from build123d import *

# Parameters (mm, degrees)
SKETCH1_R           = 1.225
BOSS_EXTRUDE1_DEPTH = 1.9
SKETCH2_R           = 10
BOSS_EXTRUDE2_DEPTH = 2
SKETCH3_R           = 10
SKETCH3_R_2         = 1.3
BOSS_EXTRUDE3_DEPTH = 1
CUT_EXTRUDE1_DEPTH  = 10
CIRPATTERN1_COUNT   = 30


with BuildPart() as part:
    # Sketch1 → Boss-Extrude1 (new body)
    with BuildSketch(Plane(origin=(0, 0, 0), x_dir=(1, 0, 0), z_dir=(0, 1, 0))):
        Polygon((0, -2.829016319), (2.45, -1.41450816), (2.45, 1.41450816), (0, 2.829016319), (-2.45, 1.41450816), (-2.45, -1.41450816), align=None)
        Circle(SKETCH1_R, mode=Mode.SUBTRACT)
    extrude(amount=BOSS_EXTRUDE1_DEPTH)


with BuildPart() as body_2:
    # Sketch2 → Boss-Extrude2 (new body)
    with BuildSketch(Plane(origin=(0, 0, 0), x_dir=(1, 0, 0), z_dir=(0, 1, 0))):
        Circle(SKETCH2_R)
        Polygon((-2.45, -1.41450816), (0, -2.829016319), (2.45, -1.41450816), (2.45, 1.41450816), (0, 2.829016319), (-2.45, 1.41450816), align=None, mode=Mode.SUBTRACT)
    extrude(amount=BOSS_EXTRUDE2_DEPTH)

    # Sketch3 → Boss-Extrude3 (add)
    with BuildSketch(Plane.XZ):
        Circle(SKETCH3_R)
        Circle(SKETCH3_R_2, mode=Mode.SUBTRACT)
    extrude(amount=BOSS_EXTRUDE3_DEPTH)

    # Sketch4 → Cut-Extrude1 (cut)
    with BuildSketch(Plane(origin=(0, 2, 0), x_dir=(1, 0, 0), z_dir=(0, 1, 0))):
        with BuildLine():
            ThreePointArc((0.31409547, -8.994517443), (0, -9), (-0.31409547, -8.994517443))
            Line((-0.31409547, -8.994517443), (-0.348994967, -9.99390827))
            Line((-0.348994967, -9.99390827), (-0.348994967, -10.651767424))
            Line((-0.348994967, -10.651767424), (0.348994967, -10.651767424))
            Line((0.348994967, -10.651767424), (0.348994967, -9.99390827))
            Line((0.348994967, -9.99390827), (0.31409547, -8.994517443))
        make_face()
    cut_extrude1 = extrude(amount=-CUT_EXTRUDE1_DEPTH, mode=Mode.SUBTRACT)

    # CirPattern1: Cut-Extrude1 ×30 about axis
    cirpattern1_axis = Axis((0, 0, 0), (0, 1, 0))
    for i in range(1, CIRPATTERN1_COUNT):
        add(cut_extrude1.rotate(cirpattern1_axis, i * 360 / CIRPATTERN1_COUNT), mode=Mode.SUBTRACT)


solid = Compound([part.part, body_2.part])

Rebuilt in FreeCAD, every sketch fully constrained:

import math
import FreeCAD as App
import Part
import Sketcher
Q = App.Units.Quantity


def add_polygon(sketch, points):
    """Adds a closed chain of lines whose ends are joined by coincident constraints."""
    first, n = sketch.GeometryCount, len(points)
    for a, b in zip(points, points[1:] + points[:1]):
        sketch.addGeometry(Part.LineSegment(App.Vector(*a, 0), App.Vector(*b, 0)), False)
    for i in range(n):
        sketch.addConstraint(Sketcher.Constraint("Coincident", first + i, 2, first + (i + 1) % n, 1))

doc = App.newDocument("Part")
body = doc.addObject("PartDesign::Body", "Body")

# Sketch on XZ plane
sketch1 = doc.addObject("Sketcher::SketchObject", "Sketch")
body.addObject(sketch1)
sketch1.AttachmentSupport = (doc.XZ_Plane, [""])
sketch1.MapMode = "FlatFace"
add_polygon(sketch1, [(0, 2.829016), (2.45, 1.414508), (2.45, -1.414508), (0, -2.829016), (-2.45, -1.414508), (-2.45, 1.414508)])  # lines 0-5
sketch1.addGeometry(Part.Circle(App.Vector(0, 0, 0), App.Vector(0, 0, 1), 1.225), False)  # 6
sketch1.addConstraint([
    Sketcher.Constraint("Vertical", 1),
    Sketcher.Constraint("Vertical", 4),
    Sketcher.Constraint("Coincident", 6, 3, -1, 1),
    Sketcher.Constraint("Symmetric", 0, 2, 3, 2, -1, 1),
    Sketcher.Constraint("Symmetric", 2, 2, 5, 2, -1, 1),
    Sketcher.Constraint("PointOnObject", 2, 2, -2),
    Sketcher.Constraint("Parallel", 2, 5),
    Sketcher.Constraint("Horizontal", 1, 2, 3, 2),
    Sketcher.Constraint("Diameter", 6, Q("2.45 mm")),
    Sketcher.Constraint("Angle", 0, Q("-30 deg")),
    Sketcher.Constraint("DistanceX", 3, 2, 1, 2, Q("4.9 mm")),
    Sketcher.Constraint("DistanceY", 1, 2, 1, 1, Q("2.829016 mm")),
])
pad1 = doc.addObject("PartDesign::Pad", "Pad")
body.addObject(pad1)
pad1.Profile = sketch1
pad1.Length = 1.9
pad1.Reversed = True
body2 = doc.addObject("PartDesign::Body", "Body001")

# Sketch on XZ plane
sketch2 = doc.addObject("Sketcher::SketchObject", "Sketch001")
body2.addObject(sketch2)
sketch2.AttachmentSupport = (doc.getObject("XZ_Plane001"), [""])
sketch2.MapMode = "FlatFace"
sketch2.addGeometry(Part.Circle(App.Vector(0, 0, 0), App.Vector(0, 0, 1), 10), False)  # 0
add_polygon(sketch2, [(0, 2.829016), (-2.45, 1.414508), (-2.45, -1.414508), (0, -2.829016), (2.45, -1.414508), (2.45, 1.414508)])  # lines 1-6
sketch2.addConstraint([
    Sketcher.Constraint("Vertical", 2),
    Sketcher.Constraint("Vertical", 5),
    Sketcher.Constraint("Coincident", 0, 3, -1, 1),
    Sketcher.Constraint("Symmetric", 1, 2, 4, 2, -1, 1),
    Sketcher.Constraint("Symmetric", 3, 2, 6, 2, -1, 1),
    Sketcher.Constraint("PointOnObject", 3, 2, -2),
    Sketcher.Constraint("Parallel", 3, 6),
    Sketcher.Constraint("Horizontal", 2, 2, 4, 2),
    Sketcher.Constraint("Diameter", 0, Q("20 mm")),
    Sketcher.Constraint("Angle", 1, Q("-150 deg")),
    Sketcher.Constraint("DistanceX", 2, 2, 4, 2, Q("4.9 mm")),
    Sketcher.Constraint("DistanceY", 2, 2, 2, 1, Q("2.829016 mm")),
])
pad2 = doc.addObject("PartDesign::Pad", "Pad001")
body2.addObject(pad2)
pad2.Profile = sketch2
pad2.Length = 2
pad2.Reversed = True

# Sketch on XZ plane
sketch3 = doc.addObject("Sketcher::SketchObject", "Sketch002")
body2.addObject(sketch3)
sketch3.AttachmentSupport = (doc.getObject("XZ_Plane001"), [""])
sketch3.MapMode = "FlatFace"
sketch3.addGeometry([
    Part.Circle(App.Vector(0, 0, 0), App.Vector(0, 0, 1), 10),
    Part.Circle(App.Vector(0, 0, 0), App.Vector(0, 0, 1), 1.3),
], False)
sketch3.addConstraint([
    Sketcher.Constraint("Coincident", 0, 3, -1, 1),
    Sketcher.Constraint("Coincident", 1, 3, -1, 1),
    Sketcher.Constraint("Diameter", 0, Q("20 mm")),
    Sketcher.Constraint("Diameter", 1, Q("2.6 mm")),
])
pad3 = doc.addObject("PartDesign::Pad", "Pad002")
body2.addObject(pad3)
pad3.Profile = sketch3
pad3.Length = 1

# Sketch on XZ plane
sketch4 = doc.addObject("Sketcher::SketchObject", "Sketch003")
body2.addObject(sketch4)
sketch4.AttachmentSupport = (doc.getObject("XZ_Plane001"), [""])
sketch4.MapMode = "FlatFace"
sketch4.AttachmentOffset = App.Placement(App.Vector(0, 0, -2), App.Rotation())
sketch4.addGeometry([
    Part.ArcOfCircle(Part.Circle(App.Vector(0, 0, 0), App.Vector(0, 0, 1), 9), math.radians(88), math.radians(92)),  # 0
    Part.LineSegment(App.Vector(-0.314095, 8.994517, 0), App.Vector(-0.348995, 9.993908, 0)),  # 1
    Part.LineSegment(App.Vector(-0.348995, 9.993908, 0), App.Vector(-0.348995, 10.651767, 0)),  # 2
    Part.LineSegment(App.Vector(-0.348995, 10.651767, 0), App.Vector(0.348995, 10.651767, 0)),  # 3
    Part.LineSegment(App.Vector(0.348995, 10.651767, 0), App.Vector(0.348995, 9.993908, 0)),  # 4
    Part.LineSegment(App.Vector(0.348995, 9.993908, 0), App.Vector(0.314095, 8.994517, 0)),  # 5
], False)
sketch4.addConstraint([
    Sketcher.Constraint("Coincident", 0, 2, 1, 1),
    Sketcher.Constraint("Coincident", 1, 2, 2, 1),
    Sketcher.Constraint("Coincident", 2, 2, 3, 1),
    Sketcher.Constraint("Coincident", 3, 2, 4, 1),
    Sketcher.Constraint("Coincident", 4, 2, 5, 1),
    Sketcher.Constraint("Coincident", 5, 2, 0, 1),
    Sketcher.Constraint("Vertical", 2),
    Sketcher.Constraint("Horizontal", 3),
    Sketcher.Constraint("Vertical", 4),
    Sketcher.Constraint("Coincident", 0, 3, -1, 1),
    Sketcher.Constraint("Symmetric", 1, 2, 4, 2, -2),
    Sketcher.Constraint("Horizontal", 0, 2, 5, 2),
    Sketcher.Constraint("Radius", 0, Q("9 mm")),
    Sketcher.Constraint("Angle", 1, Q("92 deg")),
    Sketcher.Constraint("Distance", 1, Q("1 mm")),
    Sketcher.Constraint("DistanceX", 3, 1, 3, 2, Q("0.69799 mm")),
    Sketcher.Constraint("DistanceY", 2, 1, 2, 2, Q("0.657859 mm")),
])
pocket1 = doc.addObject("PartDesign::Pocket", "Pocket")
body2.addObject(pocket1)
pocket1.Profile = sketch4
pocket1.Length = 10
pocket1.Reversed = True
doc.recompute()

polarpattern = doc.addObject("PartDesign::PolarPattern", "PolarPattern")
body2.addObject(polarpattern)
polarpattern.Originals = [pocket1]
polarpattern.Axis = (doc.getObject("Y_Axis001"), [""])
polarpattern.Angle = 360
polarpattern.Occurrences = 30
body2.Tip = polarpattern

doc.recompute()
